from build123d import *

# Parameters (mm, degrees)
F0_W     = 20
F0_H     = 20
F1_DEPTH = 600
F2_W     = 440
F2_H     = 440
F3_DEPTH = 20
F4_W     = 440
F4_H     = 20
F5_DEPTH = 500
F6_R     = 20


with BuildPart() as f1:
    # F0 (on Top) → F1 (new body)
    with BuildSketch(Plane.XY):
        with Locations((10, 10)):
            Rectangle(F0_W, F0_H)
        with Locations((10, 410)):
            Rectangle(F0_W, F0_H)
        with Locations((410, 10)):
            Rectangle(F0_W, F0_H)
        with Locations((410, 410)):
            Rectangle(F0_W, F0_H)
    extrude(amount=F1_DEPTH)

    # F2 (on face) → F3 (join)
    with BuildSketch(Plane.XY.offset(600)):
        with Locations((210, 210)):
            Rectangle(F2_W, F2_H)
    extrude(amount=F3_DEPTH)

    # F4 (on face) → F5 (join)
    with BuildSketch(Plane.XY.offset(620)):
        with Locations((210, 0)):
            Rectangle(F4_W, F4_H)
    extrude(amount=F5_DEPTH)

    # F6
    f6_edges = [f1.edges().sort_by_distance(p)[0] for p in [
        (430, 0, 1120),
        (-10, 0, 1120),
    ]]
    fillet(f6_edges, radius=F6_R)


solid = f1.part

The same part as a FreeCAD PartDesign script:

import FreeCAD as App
import Part
import Sketcher

V = App.Vector
Q = App.Units.Quantity


def edges_at(feature, points):
    """Names of the edges that pass closest to the given points."""
    edges = feature.Shape.Edges
    near = lambda p: min(range(len(edges)), key=lambda i: edges[i].distToShape(Part.Vertex(*p))[0])
    return sorted({f"Edge{near(p) + 1}" for p in points})


def add_polygon(sketch, points):
    """Adds a closed chain of lines whose ends are joined by coincident constraints."""
    first, n = sketch.GeometryCount, len(points)
    for a, b in zip(points, points[1:] + points[:1]):
        sketch.addGeometry(Part.LineSegment(App.Vector(*a, 0), App.Vector(*b, 0)), False)
    for i in range(n):
        sketch.addConstraint(Sketcher.Constraint("Coincident", first + i, 2, first + (i + 1) % n, 1))

doc = App.newDocument("Part")
body = doc.addObject("PartDesign::Body", "Body")
body.AllowCompound = True

# Sketch on XY plane
sketch1 = body.newObject("Sketcher::SketchObject", "Sketch")
sketch1.AttachmentSupport = (doc.getObject("XY_Plane"), [""])
sketch1.MapMode = "FlatFace"
add_polygon(sketch1, [(0, 20), (0, 0), (20, 0), (20, 20)])  # lines 0-3
add_polygon(sketch1, [(0, 420), (0, 400), (20, 400), (20, 420)])  # lines 4-7
add_polygon(sketch1, [(400, 20), (400, 0), (420, 0), (420, 20)])  # lines 8-11
add_polygon(sketch1, [(400, 420), (400, 400), (420, 400), (420, 420)])  # lines 12-15
sketch1.addConstraint(Sketcher.Constraint("Vertical", 0))
sketch1.addConstraint(Sketcher.Constraint("Horizontal", 1))
sketch1.addConstraint(Sketcher.Constraint("Vertical", 2))
sketch1.addConstraint(Sketcher.Constraint("Horizontal", 3))
sketch1.addConstraint(Sketcher.Constraint("Vertical", 4))
sketch1.addConstraint(Sketcher.Constraint("Horizontal", 5))
sketch1.addConstraint(Sketcher.Constraint("Vertical", 6))
sketch1.addConstraint(Sketcher.Constraint("Horizontal", 7))
sketch1.addConstraint(Sketcher.Constraint("Vertical", 8))
sketch1.addConstraint(Sketcher.Constraint("Horizontal", 9))
sketch1.addConstraint(Sketcher.Constraint("Vertical", 10))
sketch1.addConstraint(Sketcher.Constraint("Horizontal", 11))
sketch1.addConstraint(Sketcher.Constraint("Vertical", 12))
sketch1.addConstraint(Sketcher.Constraint("Horizontal", 13))
sketch1.addConstraint(Sketcher.Constraint("Vertical", 14))
sketch1.addConstraint(Sketcher.Constraint("Horizontal", 15))
sketch1.addConstraint(Sketcher.Constraint("Coincident", 0, 2, -1, 1))
sketch1.addConstraint(Sketcher.Constraint("PointOnObject", 4, 2, -2))
sketch1.addConstraint(Sketcher.Constraint("PointOnObject", 8, 2, -1))
sketch1.addConstraint(Sketcher.Constraint("Horizontal", 3, 2, 10, 2))
sketch1.addConstraint(Sketcher.Constraint("Horizontal", 5, 2, 12, 2))
sketch1.addConstraint(Sketcher.Constraint("Horizontal", 7, 2, 14, 2))
sketch1.addConstraint(Sketcher.Constraint("Vertical", 2, 2, 5, 2))
sketch1.addConstraint(Sketcher.Constraint("Vertical", 11, 2, 12, 2))
sketch1.addConstraint(Sketcher.Constraint("Vertical", 10, 2, 13, 2))
sketch1.addConstraint(Sketcher.Constraint("Equal", 7, 9))
sketch1.addConstraint(Sketcher.Constraint("Equal", 15, 0))
sketch1.addConstraint(Sketcher.Constraint("Equal", 2, 4))
sketch1.addConstraint(Sketcher.Constraint("DistanceX", 1, 1, 1, 2, Q("20 mm")))
sketch1.addConstraint(Sketcher.Constraint("DistanceY", -1, 1, 4, 2, Q("400 mm")))
sketch1.addConstraint(Sketcher.Constraint("DistanceX", -1, 1, 8, 2, Q("400 mm")))
pad1 = body.newObject("PartDesign::Pad", "Pad")
pad1.Profile = sketch1
pad1.Length = 600

# Sketch on XY plane
sketch2 = body.newObject("Sketcher::SketchObject", "Sketch001")
sketch2.AttachmentSupport = (doc.getObject("XY_Plane"), [""])
sketch2.MapMode = "FlatFace"
sketch2.AttachmentOffset = App.Placement(V(0, 0, 600), App.Rotation())
add_polygon(sketch2, [(-10, 430), (-10, -10), (430, -10), (430, 430)])  # lines 0-3
sketch2.addConstraint(Sketcher.Constraint("Vertical", 0))
sketch2.addConstraint(Sketcher.Constraint("Horizontal", 1))
sketch2.addConstraint(Sketcher.Constraint("Vertical", 2))
sketch2.addConstraint(Sketcher.Constraint("Horizontal", 3))
sketch2.addConstraint(Sketcher.Constraint("Equal", 3, 0))
sketch2.addConstraint(Sketcher.Constraint("DistanceX", 1, 1, 1, 2, Q("440 mm")))
sketch2.addConstraint(Sketcher.Constraint("DistanceX", 0, 2, -1, 1, Q("10 mm")))
sketch2.addConstraint(Sketcher.Constraint("DistanceY", 0, 2, -1, 1, Q("10 mm")))
pad2 = body.newObject("PartDesign::Pad", "Pad001")
pad2.Profile = sketch2
pad2.Length = 20

# Sketch on XY plane
sketch3 = body.newObject("Sketcher::SketchObject", "Sketch002")
sketch3.AttachmentSupport = (doc.getObject("XY_Plane"), [""])
sketch3.MapMode = "FlatFace"
sketch3.AttachmentOffset = App.Placement(V(0, 0, 620), App.Rotation())
add_polygon(sketch3, [(-10, 10), (-10, -10), (430, -10), (430, 10)])  # lines 0-3
sketch3.addConstraint(Sketcher.Constraint("Vertical", 0))
sketch3.addConstraint(Sketcher.Constraint("Horizontal", 1))
sketch3.addConstraint(Sketcher.Constraint("Vertical", 2))
sketch3.addConstraint(Sketcher.Constraint("Horizontal", 3))
sketch3.addConstraint(Sketcher.Constraint("DistanceX", 1, 1, 1, 2, Q("440 mm")))
sketch3.addConstraint(Sketcher.Constraint("DistanceY", 0, 2, 0, 1, Q("20 mm")))
sketch3.addConstraint(Sketcher.Constraint("DistanceX", 0, 2, -1, 1, Q("10 mm")))
sketch3.addConstraint(Sketcher.Constraint("DistanceY", 0, 2, -1, 1, Q("10 mm")))
pad3 = body.newObject("PartDesign::Pad", "Pad002")
pad3.Profile = sketch3
pad3.Length = 500
doc.recompute()

fillet = body.newObject("PartDesign::Fillet", "Fillet")
fillet.Base = (pad3, edges_at(pad3, [(430, 0, 1120), (-10, 0, 1120)]))
fillet.Radius = 20

doc.recompute()
